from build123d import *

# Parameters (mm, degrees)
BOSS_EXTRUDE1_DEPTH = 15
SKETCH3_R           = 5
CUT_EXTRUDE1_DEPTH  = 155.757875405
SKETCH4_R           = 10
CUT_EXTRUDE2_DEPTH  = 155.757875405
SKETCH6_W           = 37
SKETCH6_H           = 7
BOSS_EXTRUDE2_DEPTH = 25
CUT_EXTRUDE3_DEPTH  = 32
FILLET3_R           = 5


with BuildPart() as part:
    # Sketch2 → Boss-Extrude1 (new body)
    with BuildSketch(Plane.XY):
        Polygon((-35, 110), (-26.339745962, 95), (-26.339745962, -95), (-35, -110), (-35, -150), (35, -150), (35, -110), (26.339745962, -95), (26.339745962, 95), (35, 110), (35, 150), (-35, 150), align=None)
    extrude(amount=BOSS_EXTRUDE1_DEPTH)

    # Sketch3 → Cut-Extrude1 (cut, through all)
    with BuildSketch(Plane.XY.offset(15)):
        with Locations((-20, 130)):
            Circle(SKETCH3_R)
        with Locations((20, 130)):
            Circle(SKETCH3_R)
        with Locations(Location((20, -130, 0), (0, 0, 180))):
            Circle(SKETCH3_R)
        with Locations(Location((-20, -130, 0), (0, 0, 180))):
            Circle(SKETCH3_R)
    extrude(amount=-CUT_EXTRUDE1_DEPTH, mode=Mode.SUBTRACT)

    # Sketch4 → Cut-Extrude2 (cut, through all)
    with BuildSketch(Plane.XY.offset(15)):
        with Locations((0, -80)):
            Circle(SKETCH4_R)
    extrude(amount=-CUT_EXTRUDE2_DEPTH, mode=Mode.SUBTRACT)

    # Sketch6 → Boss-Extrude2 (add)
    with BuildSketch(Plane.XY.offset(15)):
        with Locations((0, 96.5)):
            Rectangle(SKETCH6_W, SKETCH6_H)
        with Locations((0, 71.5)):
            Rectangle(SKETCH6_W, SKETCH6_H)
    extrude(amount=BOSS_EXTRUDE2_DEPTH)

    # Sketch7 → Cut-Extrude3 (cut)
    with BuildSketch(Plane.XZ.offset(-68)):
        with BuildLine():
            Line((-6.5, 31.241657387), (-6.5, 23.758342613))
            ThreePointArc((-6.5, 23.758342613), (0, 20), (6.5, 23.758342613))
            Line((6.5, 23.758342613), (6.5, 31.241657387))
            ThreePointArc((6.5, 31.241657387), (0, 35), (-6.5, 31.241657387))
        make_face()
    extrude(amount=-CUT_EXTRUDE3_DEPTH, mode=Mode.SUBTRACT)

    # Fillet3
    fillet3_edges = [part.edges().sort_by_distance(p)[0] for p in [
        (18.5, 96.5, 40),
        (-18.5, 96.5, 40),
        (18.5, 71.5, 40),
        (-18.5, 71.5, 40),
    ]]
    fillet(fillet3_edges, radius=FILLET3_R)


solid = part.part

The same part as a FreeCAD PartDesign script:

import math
import FreeCAD as App
import Part
import Sketcher
Q = App.Units.Quantity


def edges_at(feature, points):
    """Names of the edges that pass closest to the given points."""
    edges = feature.Shape.Edges
    near = lambda p: min(range(len(edges)), key=lambda i: edges[i].distToShape(Part.Vertex(*p))[0])
    return sorted({f"Edge{near(p) + 1}" for p in points})


def add_polygon(sketch, points):
    """Adds a closed chain of lines whose ends are joined by coincident constraints."""
    first, n = sketch.GeometryCount, len(points)
    for a, b in zip(points, points[1:] + points[:1]):
        sketch.addGeometry(Part.LineSegment(App.Vector(*a, 0), App.Vector(*b, 0)), False)
    for i in range(n):
        sketch.addConstraint(Sketcher.Constraint("Coincident", first + i, 2, first + (i + 1) % n, 1))

doc = App.newDocument("Part")
body = doc.addObject("PartDesign::Body", "Body")

sketch1 = body.newObject("Sketcher::SketchObject", "Sketch")
sketch1.AttachmentSupport = (doc.getObject("XY_Plane"), [""])
sketch1.MapMode = "FlatFace"
add_polygon(sketch1, [(-35, 110), (-26, 95), (-26, -95), (-35, -110), (-35, -150), (35, -150), (35, -110), (26, -95), (26, 95), (35, 110), (35, 150), (-35, 150)])
sketch1.addConstraint([
    Sketcher.Constraint("Vertical", 1),
    Sketcher.Constraint("Vertical", 3),
    Sketcher.Constraint("Horizontal", 4),
    Sketcher.Constraint("Vertical", 5),
    Sketcher.Constraint("Vertical", 7),
    Sketcher.Constraint("Vertical", 9),
    Sketcher.Constraint("Horizontal", 10),
    Sketcher.Constraint("Vertical", 11),
    Sketcher.Constraint("Symmetric", 0, 2, 6, 2, -1, 1),
    Sketcher.Constraint("Symmetric", 2, 2, 8, 2, -1, 1),
    Sketcher.Constraint("Symmetric", 4, 2, 10, 2, -1, 1),
    Sketcher.Constraint("Symmetric", 2, 2, 5, 2, -2),
    Sketcher.Constraint("Parallel", 0, 6),
    Sketcher.Constraint("Parallel", 2, 8),
    Sketcher.Constraint("Horizontal", 1, 2, 6, 2),
    Sketcher.Constraint("DistanceX", 4, 1, 4, 2, Q("70 mm")),
    Sketcher.Constraint("DistanceY", 1, 2, 1, 1, Q("190 mm")),
    Sketcher.Constraint("DistanceY", 3, 2, 3, 1, Q("40 mm")),
    Sketcher.Constraint("Angle", 0, Q("-60 deg")),
    Sketcher.Constraint("DistanceY", 2, 2, -1, 1, Q("110 mm")),
])
pad1 = body.newObject("PartDesign::Pad", "Pad")
pad1.Profile = sketch1
pad1.Length = 15

sketch2 = body.newObject("Sketcher::SketchObject", "Sketch001")
sketch2.AttachmentSupport = (doc.getObject("XY_Plane"), [""])
sketch2.MapMode = "FlatFace"
sketch2.AttachmentOffset = App.Placement(App.Vector(0, 0, 15), App.Rotation())
sketch2.addGeometry([
    Part.Circle(App.Vector(-20, 130, 0), App.Vector(0, 0, 1), 5),
    Part.Circle(App.Vector(20, 130, 0), App.Vector(0, 0, 1), 5),
    Part.Circle(App.Vector(20, -130, 0), App.Vector(0, 0, 1), 5),
    Part.Circle(App.Vector(-20, -130, 0), App.Vector(0, 0, 1), 5),
], False)
sketch2.addConstraint([
    Sketcher.Constraint("Equal", 0, 1),
    Sketcher.Constraint("Equal", 1, 2),
    Sketcher.Constraint("Equal", 2, 3),
    Sketcher.Constraint("Symmetric", 0, 3, 2, 3, -1, 1),
    Sketcher.Constraint("Symmetric", 1, 3, 3, 3, -1, 1),
    Sketcher.Constraint("Symmetric", 0, 3, 1, 3, -2),
    Sketcher.Constraint("Diameter", 0, Q("10 mm")),
    Sketcher.Constraint("DistanceX", 0, 3, -1, 1, Q("20 mm")),
    Sketcher.Constraint("DistanceY", -1, 1, 0, 3, Q("130 mm")),
])
pocket1 = body.newObject("PartDesign::Pocket", "Pocket")
pocket1.Profile = sketch2
pocket1.Type = "ThroughAll"

sketch3 = body.newObject("Sketcher::SketchObject", "Sketch002")
sketch3.AttachmentSupport = (doc.getObject("XY_Plane"), [""])
sketch3.MapMode = "FlatFace"
sketch3.AttachmentOffset = App.Placement(App.Vector(0, 0, 15), App.Rotation())
sketch3.addGeometry(Part.Circle(App.Vector(0, -80, 0), App.Vector(0, 0, 1), 10), False)
sketch3.addConstraint([
    Sketcher.Constraint("PointOnObject", 0, 3, -2),
    Sketcher.Constraint("Diameter", 0, Q("20 mm")),
    Sketcher.Constraint("DistanceY", 0, 3, -1, 1, Q("80 mm")),
])
pocket2 = body.newObject("PartDesign::Pocket", "Pocket001")
pocket2.Profile = sketch3
pocket2.Type = "ThroughAll"

sketch4 = body.newObject("Sketcher::SketchObject", "Sketch003")
sketch4.AttachmentSupport = (doc.getObject("XY_Plane"), [""])
sketch4.MapMode = "FlatFace"
sketch4.AttachmentOffset = App.Placement(App.Vector(0, 0, 15), App.Rotation())
add_polygon(sketch4, [(-18, 100), (-18, 93), (18, 93), (18, 100)])
add_polygon(sketch4, [(-18, 75), (-18, 68), (18, 68), (18, 75)])
sketch4.addConstraint([
    Sketcher.Constraint("Vertical", 0),
    Sketcher.Constraint("Horizontal", 1),
    Sketcher.Constraint("Vertical", 2),
    Sketcher.Constraint("Horizontal", 3),
    Sketcher.Constraint("Vertical", 4),
    Sketcher.Constraint("Horizontal", 5),
    Sketcher.Constraint("Vertical", 6),
    Sketcher.Constraint("Horizontal", 7),
    Sketcher.Constraint("Vertical", 3, 2, 4, 2),
    Sketcher.Constraint("Vertical", 2, 2, 5, 2),
    Sketcher.Constraint("Equal", 2, 4),
    Sketcher.Constraint("DistanceX", 1, 1, 1, 2, Q("37 mm")),
    Sketcher.Constraint("DistanceY", 0, 2, 0, 1, Q("7 mm")),
    Sketcher.Constraint("DistanceY", -1, 1, 0, 2, Q("93 mm")),
    Sketcher.Constraint("DistanceY", -1, 1, 4, 2, Q("68 mm")),
    Sketcher.Constraint("DistanceX", 0, 2, -1, 1, Q("18.5 mm")),
])
pad2 = body.newObject("PartDesign::Pad", "Pad001")
pad2.Profile = sketch4
pad2.Length = 25

sketch5 = body.newObject("Sketcher::SketchObject", "Sketch004")
sketch5.AttachmentSupport = (doc.getObject("XZ_Plane"), [""])
sketch5.MapMode = "FlatFace"
sketch5.AttachmentOffset = App.Placement(App.Vector(0, 0, -68), App.Rotation())
sketch5.addGeometry([
    Part.LineSegment(App.Vector(-6, 31, 0), App.Vector(-6, 24, 0)),
    Part.ArcOfCircle(Part.Circle(App.Vector(0, 28, 0), App.Vector(0, 0, 1), 8), math.radians(-150), math.radians(-30)),
    Part.LineSegment(App.Vector(6, 24, 0), App.Vector(6, 31, 0)),
    Part.ArcOfCircle(Part.Circle(App.Vector(0, 28, 0), App.Vector(0, 0, 1), 8), math.radians(30), math.radians(150)),
], False)
sketch5.addConstraint([
    Sketcher.Constraint("Coincident", 0, 2, 1, 1),
    Sketcher.Constraint("Coincident", 1, 2, 2, 1),
    Sketcher.Constraint("Coincident", 2, 2, 3, 1),
    Sketcher.Constraint("Coincident", 3, 2, 0, 1),
    Sketcher.Constraint("Vertical", 0),
    Sketcher.Constraint("Vertical", 2),
    Sketcher.Constraint("Coincident", 3, 3, 1, 3),
    Sketcher.Constraint("Equal", 1, 3),
    Sketcher.Constraint("Symmetric", 0, 2, 1, 2, -2),
    Sketcher.Constraint("Radius", 1, Q("7.5 mm")),
    Sketcher.Constraint("DistanceX", 0, 2, 1, 2, Q("13 mm")),
    Sketcher.Constraint("DistanceY", -1, 1, 1, 3, Q("27.5 mm")),
])
pocket3 = body.newObject("PartDesign::Pocket", "Pocket002")
pocket3.Profile = sketch5
pocket3.Length = 32
doc.recompute()

fillet = body.newObject("PartDesign::Fillet", "Fillet")
fillet.Base = (pocket3, edges_at(pocket3, [
    (18.5, 96.5, 40),
    (-18.5, 96.5, 40),
    (18.5, 71.5, 40),
    (-18.5, 71.5, 40),
]))
fillet.Radius = 5

doc.recompute()
